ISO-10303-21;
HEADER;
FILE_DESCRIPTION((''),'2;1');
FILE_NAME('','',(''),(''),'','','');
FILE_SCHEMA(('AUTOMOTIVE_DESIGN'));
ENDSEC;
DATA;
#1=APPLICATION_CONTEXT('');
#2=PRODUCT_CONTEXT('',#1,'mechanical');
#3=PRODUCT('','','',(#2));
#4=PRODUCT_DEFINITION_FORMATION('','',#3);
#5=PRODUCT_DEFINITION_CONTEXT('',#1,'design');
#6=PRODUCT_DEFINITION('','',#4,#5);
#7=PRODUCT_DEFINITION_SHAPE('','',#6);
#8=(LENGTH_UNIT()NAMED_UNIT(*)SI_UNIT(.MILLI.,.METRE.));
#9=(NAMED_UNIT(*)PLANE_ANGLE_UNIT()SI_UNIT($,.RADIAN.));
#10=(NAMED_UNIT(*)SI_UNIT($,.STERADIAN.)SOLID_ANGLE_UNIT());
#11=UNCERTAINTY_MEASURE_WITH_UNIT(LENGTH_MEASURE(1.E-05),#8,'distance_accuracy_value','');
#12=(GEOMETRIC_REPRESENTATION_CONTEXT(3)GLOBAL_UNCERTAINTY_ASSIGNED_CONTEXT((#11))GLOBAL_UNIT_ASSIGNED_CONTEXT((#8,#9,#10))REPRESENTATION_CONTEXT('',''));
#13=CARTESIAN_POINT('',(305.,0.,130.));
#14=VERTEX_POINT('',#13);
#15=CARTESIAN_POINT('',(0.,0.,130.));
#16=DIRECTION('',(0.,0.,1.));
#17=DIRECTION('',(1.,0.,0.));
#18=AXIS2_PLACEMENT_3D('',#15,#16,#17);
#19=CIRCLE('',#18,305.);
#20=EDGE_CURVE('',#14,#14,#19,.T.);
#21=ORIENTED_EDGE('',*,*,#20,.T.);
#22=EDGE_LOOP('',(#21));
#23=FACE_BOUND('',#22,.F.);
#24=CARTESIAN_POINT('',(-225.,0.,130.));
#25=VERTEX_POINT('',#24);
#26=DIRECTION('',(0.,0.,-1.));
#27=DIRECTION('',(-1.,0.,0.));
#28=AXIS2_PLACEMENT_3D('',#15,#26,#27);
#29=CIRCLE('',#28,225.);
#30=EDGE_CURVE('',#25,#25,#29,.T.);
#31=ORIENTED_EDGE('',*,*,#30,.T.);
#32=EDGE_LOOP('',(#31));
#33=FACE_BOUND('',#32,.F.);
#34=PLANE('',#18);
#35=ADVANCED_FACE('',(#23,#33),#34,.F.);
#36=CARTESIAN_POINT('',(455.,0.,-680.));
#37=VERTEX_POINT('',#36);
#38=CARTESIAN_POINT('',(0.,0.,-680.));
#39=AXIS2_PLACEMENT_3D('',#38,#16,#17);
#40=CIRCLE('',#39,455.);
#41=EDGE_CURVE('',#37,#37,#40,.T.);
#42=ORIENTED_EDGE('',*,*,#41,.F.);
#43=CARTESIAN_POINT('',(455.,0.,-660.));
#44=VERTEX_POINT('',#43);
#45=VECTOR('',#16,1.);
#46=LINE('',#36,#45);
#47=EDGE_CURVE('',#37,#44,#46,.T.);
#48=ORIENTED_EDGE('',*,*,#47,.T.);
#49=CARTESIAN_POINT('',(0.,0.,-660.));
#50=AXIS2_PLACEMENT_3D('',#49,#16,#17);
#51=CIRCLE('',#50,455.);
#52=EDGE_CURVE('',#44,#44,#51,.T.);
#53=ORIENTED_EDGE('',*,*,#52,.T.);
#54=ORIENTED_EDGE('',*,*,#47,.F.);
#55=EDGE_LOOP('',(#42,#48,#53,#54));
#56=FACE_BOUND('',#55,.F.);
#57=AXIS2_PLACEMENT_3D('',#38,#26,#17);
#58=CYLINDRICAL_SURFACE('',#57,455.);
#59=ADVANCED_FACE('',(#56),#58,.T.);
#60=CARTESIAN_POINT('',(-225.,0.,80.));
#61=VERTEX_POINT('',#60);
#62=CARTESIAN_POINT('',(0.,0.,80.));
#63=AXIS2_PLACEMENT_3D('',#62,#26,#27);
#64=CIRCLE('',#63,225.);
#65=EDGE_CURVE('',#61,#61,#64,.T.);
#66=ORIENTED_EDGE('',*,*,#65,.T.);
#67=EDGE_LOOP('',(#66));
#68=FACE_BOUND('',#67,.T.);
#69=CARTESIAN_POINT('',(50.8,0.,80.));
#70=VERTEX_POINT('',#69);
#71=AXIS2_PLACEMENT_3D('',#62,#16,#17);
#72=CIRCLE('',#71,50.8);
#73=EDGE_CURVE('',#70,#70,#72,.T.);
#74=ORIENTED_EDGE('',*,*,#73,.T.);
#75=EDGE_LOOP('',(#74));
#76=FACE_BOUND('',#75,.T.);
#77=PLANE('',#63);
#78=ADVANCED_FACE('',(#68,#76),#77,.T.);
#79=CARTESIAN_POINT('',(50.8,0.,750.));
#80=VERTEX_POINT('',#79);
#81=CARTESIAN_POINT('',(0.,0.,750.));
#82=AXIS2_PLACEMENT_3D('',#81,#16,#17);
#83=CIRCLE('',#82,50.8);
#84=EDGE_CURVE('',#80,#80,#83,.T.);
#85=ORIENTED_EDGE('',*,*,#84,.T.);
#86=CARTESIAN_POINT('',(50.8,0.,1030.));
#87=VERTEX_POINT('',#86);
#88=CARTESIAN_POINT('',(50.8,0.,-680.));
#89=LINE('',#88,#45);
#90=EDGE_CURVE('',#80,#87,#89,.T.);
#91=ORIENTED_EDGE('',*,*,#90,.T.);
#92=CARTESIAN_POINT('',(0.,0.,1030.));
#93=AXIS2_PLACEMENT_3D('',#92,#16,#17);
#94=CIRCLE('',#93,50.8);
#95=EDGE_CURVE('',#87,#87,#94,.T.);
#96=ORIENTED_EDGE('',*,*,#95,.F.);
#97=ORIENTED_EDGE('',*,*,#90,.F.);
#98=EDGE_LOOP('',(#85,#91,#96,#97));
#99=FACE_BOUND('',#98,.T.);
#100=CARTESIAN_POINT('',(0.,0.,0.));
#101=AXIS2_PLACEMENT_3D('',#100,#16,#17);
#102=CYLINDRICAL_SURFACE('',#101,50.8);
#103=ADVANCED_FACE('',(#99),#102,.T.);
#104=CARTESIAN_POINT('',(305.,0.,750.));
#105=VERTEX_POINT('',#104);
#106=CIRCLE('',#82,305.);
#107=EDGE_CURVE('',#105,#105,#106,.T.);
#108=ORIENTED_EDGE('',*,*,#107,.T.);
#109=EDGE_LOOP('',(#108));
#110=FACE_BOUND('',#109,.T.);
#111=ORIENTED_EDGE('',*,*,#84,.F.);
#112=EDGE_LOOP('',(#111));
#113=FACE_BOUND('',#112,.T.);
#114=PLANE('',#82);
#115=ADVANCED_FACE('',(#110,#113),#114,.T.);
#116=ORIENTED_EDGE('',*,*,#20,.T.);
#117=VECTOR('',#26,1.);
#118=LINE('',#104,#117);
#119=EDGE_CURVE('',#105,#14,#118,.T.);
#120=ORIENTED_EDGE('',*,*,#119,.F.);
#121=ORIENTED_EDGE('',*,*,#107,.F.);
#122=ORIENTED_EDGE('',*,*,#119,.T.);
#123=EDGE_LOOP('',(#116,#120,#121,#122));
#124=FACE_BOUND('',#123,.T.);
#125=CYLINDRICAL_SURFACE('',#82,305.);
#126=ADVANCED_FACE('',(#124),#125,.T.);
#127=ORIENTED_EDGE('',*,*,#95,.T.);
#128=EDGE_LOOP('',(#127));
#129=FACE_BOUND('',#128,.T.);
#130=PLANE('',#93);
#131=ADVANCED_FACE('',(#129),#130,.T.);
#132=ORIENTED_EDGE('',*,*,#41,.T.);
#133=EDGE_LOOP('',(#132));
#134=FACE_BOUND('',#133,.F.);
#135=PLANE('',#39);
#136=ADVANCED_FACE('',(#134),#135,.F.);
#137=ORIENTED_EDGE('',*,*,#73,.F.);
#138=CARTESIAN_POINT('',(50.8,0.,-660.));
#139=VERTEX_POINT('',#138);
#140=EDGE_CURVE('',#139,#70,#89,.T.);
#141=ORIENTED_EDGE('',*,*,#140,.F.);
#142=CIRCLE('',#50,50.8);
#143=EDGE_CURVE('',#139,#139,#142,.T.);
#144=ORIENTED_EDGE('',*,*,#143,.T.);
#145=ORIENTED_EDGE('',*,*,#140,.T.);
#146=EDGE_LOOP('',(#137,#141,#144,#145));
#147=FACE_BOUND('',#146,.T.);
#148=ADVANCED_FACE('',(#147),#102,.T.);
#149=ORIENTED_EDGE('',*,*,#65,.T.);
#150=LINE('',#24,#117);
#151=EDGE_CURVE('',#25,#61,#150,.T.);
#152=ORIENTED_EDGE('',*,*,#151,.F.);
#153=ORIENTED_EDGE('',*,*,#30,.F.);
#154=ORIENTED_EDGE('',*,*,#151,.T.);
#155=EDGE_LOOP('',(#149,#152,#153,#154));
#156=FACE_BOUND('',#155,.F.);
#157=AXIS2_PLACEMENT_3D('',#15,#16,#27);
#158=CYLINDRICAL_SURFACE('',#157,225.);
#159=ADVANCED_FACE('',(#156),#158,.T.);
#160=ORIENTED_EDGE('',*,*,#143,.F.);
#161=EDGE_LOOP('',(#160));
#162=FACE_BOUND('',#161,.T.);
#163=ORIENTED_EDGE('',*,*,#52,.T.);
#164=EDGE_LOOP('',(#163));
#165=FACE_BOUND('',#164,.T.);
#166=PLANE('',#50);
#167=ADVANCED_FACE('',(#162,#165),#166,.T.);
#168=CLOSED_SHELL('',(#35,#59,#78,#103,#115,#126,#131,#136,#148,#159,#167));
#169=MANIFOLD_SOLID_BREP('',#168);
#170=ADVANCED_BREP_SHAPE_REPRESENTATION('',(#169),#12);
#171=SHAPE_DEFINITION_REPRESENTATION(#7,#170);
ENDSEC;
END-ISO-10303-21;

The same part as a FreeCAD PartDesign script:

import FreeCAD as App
import Part
import Sketcher

V = App.Vector

doc = App.newDocument("Part")
body = doc.addObject("PartDesign::Body", "Body")

sketch1 = doc.addObject("Sketcher::SketchObject", "Sketch")
body.addObject(sketch1)
sketch1.AttachmentSupport = (doc.XY_Plane, [""])
sketch1.MapMode = "FlatFace"
sketch1.addGeometry(Part.Circle(V(0, 0, 0), V(0, 0, 1), 50.8), False)
sketch1.addConstraint(Sketcher.Constraint("Coincident", 0, 3, -1, 1))
sketch1.addConstraint(Sketcher.Constraint("Diameter", 0, 101.6))
pad1 = doc.addObject("PartDesign::Pad", "Pad")
body.addObject(pad1)
pad1.Profile = sketch1
pad1.Type = "TwoLengths"
pad1.Length = 1030
pad1.Length2 = 680

sketch2 = doc.addObject("Sketcher::SketchObject", "Sketch001")
body.addObject(sketch2)
sketch2.AttachmentSupport = (doc.XY_Plane, [""])
sketch2.MapMode = "FlatFace"
sketch2.AttachmentOffset = App.Placement(V(0, 0, -680), App.Rotation())
sketch2.addGeometry(Part.Circle(V(0, 0, 0), V(0, 0, 1), 455), False)
sketch2.addConstraint(Sketcher.Constraint("Coincident", 0, 3, -1, 1))
sketch2.addConstraint(Sketcher.Constraint("Diameter", 0, 910.0))
pad2 = doc.addObject("PartDesign::Pad", "Pad001")
body.addObject(pad2)
pad2.Profile = sketch2
pad2.Length = 20

sketch3 = doc.addObject("Sketcher::SketchObject", "Sketch002")
body.addObject(sketch3)
sketch3.AttachmentSupport = (doc.XY_Plane, [""])
sketch3.MapMode = "FlatFace"
sketch3.AttachmentOffset = App.Placement(V(0, 0, 750), App.Rotation())
sketch3.addGeometry(Part.Circle(V(0, 0, 0), V(0, 0, 1), 305), False)
sketch3.addConstraint(Sketcher.Constraint("Coincident", 0, 3, -1, 1))
sketch3.addConstraint(Sketcher.Constraint("Diameter", 0, 610.0))
pad3 = doc.addObject("PartDesign::Pad", "Pad002")
body.addObject(pad3)
pad3.Profile = sketch3
pad3.Length = 620
pad3.Reversed = True

sketch4 = doc.addObject("Sketcher::SketchObject", "Sketch003")
body.addObject(sketch4)
sketch4.AttachmentSupport = (doc.XY_Plane, [""])
sketch4.MapMode = "FlatFace"
sketch4.AttachmentOffset = App.Placement(V(0, 0, 130), App.Rotation())
sketch4.addGeometry(Part.Circle(V(0, 0, 0), V(0, 0, 1), 225), False)
sketch4.addConstraint(Sketcher.Constraint("Coincident", 0, 3, -1, 1))
sketch4.addConstraint(Sketcher.Constraint("Diameter", 0, 450.0))
pad4 = doc.addObject("PartDesign::Pad", "Pad003")
body.addObject(pad4)
pad4.Profile = sketch4
pad4.Length = 50
pad4.Reversed = True

doc.recompute()
